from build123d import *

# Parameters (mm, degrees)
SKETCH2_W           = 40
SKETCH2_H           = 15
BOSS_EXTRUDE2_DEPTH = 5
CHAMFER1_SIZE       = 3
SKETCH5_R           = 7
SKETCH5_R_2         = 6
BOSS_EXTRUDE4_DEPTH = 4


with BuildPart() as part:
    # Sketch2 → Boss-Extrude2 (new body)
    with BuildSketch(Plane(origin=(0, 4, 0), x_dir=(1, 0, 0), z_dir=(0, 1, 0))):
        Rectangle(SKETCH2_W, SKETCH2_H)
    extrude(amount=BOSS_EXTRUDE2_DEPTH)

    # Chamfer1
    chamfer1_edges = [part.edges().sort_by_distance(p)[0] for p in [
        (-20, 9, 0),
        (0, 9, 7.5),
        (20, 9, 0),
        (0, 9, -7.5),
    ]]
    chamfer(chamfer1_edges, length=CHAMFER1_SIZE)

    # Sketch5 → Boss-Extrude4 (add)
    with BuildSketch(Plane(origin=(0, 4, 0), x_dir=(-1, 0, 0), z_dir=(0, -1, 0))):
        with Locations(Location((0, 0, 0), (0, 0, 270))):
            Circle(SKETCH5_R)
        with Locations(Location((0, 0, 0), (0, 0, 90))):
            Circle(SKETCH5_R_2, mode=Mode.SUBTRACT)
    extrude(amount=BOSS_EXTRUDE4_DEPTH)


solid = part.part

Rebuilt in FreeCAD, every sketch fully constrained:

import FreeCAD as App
import Part
import Sketcher
Q = App.Units.Quantity


def edges_at(feature, points):
    """Names of the edges that pass closest to the given points."""
    edges = feature.Shape.Edges
    near = lambda p: min(range(len(edges)), key=lambda i: edges[i].distToShape(Part.Vertex(*p))[0])
    return sorted({f"Edge{near(p) + 1}" for p in points})

doc = App.newDocument("Part")
body = doc.addObject("PartDesign::Body", "Body")

# Sketch on XZ plane
sketch1 = body.newObject("Sketcher::SketchObject", "Sketch")
sketch1.AttachmentSupport = (doc.getObject("XZ_Plane"), [""])
sketch1.MapMode = "FlatFace"
sketch1.AttachmentOffset = App.Placement(App.Vector(0, 0, -4), App.Rotation())
sketch1.addGeometry([
    Part.LineSegment(App.Vector(-20, -8, 0), App.Vector(-20, 8, 0)),
    Part.LineSegment(App.Vector(-20, 8, 0), App.Vector(20, 8, 0)),
    Part.LineSegment(App.Vector(20, 8, 0), App.Vector(20, -8, 0)),
    Part.LineSegment(App.Vector(20, -8, 0), App.Vector(-20, -8, 0)),
], False)
sketch1.addConstraint([
    Sketcher.Constraint("Coincident", 0, 2, 1, 1),
    Sketcher.Constraint("Coincident", 1, 2, 2, 1),
    Sketcher.Constraint("Coincident", 2, 2, 3, 1),
    Sketcher.Constraint("Coincident", 3, 2, 0, 1),
    Sketcher.Constraint("Vertical", 0),
    Sketcher.Constraint("Horizontal", 1),
    Sketcher.Constraint("Vertical", 2),
    Sketcher.Constraint("Horizontal", 3),
    Sketcher.Constraint("Symmetric", 0, 2, 2, 2, -1, 1),
    Sketcher.Constraint("DistanceX", 1, 1, 1, 2, Q("40 mm")),
    Sketcher.Constraint("DistanceY", 0, 1, 0, 2, Q("15 mm")),
])
pad1 = body.newObject("PartDesign::Pad", "Pad")
pad1.Profile = sketch1
pad1.Length = 5
pad1.Reversed = True
doc.recompute()

chamfer = body.newObject("PartDesign::Chamfer", "Chamfer")
chamfer.Base = (pad1, edges_at(pad1, [
    (-20, 9, 0),
    (0, 9, 7.5),
    (20, 9, 0),
    (0, 9, -7.5),
]))
chamfer.Size = 3

# Sketch on XZ plane
sketch2 = body.newObject("Sketcher::SketchObject", "Sketch001")
sketch2.AttachmentSupport = (doc.getObject("XZ_Plane"), [""])
sketch2.MapMode = "FlatFace"
sketch2.AttachmentOffset = App.Placement(App.Vector(0, 0, -4), App.Rotation())
sketch2.addGeometry([
    Part.Circle(App.Vector(0, 0, 0), App.Vector(0, 0, 1), 7),
    Part.Circle(App.Vector(0, 0, 0), App.Vector(0, 0, 1), 6),
], False)
sketch2.addConstraint([
    Sketcher.Constraint("Coincident", 0, 3, -1, 1),
    Sketcher.Constraint("Coincident", 1, 3, -1, 1),
    Sketcher.Constraint("Diameter", 0, Q("14 mm")),
    Sketcher.Constraint("Diameter", 1, Q("12 mm")),
])
pad2 = body.newObject("PartDesign::Pad", "Pad001")
pad2.Profile = sketch2
pad2.Length = 4

doc.recompute()
